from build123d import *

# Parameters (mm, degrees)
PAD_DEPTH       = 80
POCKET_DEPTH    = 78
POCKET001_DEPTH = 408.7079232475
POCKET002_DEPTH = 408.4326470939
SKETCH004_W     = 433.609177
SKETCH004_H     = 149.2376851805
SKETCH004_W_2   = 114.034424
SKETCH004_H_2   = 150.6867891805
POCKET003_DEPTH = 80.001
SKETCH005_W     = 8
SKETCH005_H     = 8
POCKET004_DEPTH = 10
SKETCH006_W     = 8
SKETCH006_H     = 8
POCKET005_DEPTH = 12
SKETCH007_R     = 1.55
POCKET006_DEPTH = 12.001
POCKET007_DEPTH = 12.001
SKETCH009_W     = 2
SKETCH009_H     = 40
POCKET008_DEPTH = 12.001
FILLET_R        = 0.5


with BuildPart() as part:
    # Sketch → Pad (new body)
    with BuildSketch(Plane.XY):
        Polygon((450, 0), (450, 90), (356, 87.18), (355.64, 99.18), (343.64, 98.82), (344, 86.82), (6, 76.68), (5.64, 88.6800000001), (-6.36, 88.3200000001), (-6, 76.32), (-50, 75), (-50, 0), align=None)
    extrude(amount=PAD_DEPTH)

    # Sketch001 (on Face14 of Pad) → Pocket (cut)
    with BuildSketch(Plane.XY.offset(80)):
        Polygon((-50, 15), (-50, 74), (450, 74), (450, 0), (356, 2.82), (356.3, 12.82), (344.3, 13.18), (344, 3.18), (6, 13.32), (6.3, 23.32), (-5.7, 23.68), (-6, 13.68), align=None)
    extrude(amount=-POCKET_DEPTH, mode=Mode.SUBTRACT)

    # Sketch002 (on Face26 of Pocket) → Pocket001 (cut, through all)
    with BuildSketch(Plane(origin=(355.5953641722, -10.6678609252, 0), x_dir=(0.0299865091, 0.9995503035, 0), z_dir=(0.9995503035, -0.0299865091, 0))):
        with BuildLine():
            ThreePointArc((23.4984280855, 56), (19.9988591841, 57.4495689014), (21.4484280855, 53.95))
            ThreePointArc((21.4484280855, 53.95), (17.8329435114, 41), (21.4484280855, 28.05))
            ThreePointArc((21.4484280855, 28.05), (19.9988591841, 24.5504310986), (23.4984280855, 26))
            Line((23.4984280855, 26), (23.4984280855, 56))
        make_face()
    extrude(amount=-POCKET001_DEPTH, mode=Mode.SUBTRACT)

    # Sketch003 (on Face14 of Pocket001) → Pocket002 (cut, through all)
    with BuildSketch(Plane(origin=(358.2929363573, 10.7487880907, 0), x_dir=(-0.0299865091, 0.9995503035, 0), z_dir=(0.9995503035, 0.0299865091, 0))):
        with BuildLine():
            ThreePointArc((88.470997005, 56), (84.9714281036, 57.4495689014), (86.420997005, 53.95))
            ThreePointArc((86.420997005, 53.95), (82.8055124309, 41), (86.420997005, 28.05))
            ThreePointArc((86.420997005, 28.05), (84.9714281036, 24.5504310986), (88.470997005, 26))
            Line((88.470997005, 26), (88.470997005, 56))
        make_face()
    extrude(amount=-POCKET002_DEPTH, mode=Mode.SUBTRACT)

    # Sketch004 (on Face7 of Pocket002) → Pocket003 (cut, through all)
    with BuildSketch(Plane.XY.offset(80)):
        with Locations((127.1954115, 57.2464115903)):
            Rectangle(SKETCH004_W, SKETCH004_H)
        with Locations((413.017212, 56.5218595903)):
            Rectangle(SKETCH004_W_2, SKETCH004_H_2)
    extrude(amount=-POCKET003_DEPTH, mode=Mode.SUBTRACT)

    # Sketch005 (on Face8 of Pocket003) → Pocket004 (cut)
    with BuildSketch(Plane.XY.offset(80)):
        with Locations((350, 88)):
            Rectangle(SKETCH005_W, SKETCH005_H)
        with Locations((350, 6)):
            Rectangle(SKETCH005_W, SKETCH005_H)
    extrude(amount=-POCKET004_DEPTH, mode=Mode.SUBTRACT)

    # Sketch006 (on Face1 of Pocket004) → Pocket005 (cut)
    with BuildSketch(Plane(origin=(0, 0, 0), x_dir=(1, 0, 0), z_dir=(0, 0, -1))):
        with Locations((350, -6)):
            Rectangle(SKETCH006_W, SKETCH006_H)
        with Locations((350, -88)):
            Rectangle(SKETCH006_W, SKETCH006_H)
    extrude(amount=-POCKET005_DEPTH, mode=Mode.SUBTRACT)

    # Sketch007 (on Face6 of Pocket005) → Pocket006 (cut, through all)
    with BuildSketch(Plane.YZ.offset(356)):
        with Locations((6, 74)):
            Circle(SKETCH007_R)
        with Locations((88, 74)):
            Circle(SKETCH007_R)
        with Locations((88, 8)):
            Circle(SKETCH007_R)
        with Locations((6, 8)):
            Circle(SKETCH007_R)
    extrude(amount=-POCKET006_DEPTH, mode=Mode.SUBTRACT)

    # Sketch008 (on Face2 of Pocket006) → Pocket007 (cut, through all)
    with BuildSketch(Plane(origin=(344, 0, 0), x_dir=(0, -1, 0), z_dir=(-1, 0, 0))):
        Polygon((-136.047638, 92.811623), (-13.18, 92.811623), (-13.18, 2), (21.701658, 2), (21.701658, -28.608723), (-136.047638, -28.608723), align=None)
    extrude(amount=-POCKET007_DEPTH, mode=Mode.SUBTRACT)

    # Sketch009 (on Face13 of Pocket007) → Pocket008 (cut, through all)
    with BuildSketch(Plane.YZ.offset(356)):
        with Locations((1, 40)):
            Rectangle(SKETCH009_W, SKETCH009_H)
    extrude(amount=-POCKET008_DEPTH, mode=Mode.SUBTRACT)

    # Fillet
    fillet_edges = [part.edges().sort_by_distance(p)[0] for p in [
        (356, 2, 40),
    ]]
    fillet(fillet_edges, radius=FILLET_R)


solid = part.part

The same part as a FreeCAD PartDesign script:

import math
import FreeCAD as App
import Part
import Sketcher
from FreeCAD import Vector
Q = App.Units.Quantity


def edges_at(feature, points):
    """Names of the edges that pass closest to the given points."""
    edges = feature.Shape.Edges
    near = lambda p: min(range(len(edges)), key=lambda i: edges[i].distToShape(Part.Vertex(*p))[0])
    return sorted({f"Edge{near(p) + 1}" for p in points})


def add_polygon(sketch, points):
    """Adds a closed chain of lines whose ends are joined by coincident constraints."""
    first, n = sketch.GeometryCount, len(points)
    for a, b in zip(points, points[1:] + points[:1]):
        sketch.addGeometry(Part.LineSegment(App.Vector(*a, 0), App.Vector(*b, 0)), False)
    for i in range(n):
        sketch.addConstraint(Sketcher.Constraint("Coincident", first + i, 2, first + (i + 1) % n, 1))

doc = App.newDocument("Part")
params = doc.addObject("Spreadsheet::Sheet", "Params")
for row, (alias, value) in enumerate([
    ("sketch1_width", "500 mm"),
    ("sketch1_height", "90 mm"),
    ("sketch1_height2", "75 mm"),
    ("pad1_length", "80 mm"),
    ("sketch2_width", "500 mm"),
    ("sketch2_height", "59 mm"),
    ("sketch2_height2", "74 mm"),
    ("pocket1_length", "78 mm"),
    ("sketch3_radius", "25 mm"),
    ("sketch3_height", "30 mm"),
    ("sketch3_radius2", "2.05 mm"),
    ("sketch4_radius", "25 mm"),
    ("sketch4_height", "30 mm"),
    ("sketch4_radius2", "2.05 mm"),
    ("sketch6_width", "8 mm"),
    ("pocket5_length", "10 mm"),
    ("sketch7_width", "8 mm"),
    ("pocket6_length", "12 mm"),
    ("sketch8_diameter", "3.1 mm"),
    ("sketch10_width", "2 mm"),
    ("sketch10_height", "40 mm"),
    ("fillet_radius", "0.5 mm"),
], start=1):
    params.set(f"A{row}", alias)
    params.set(f"B{row}", "=" + value)
    params.setAlias(f"B{row}", alias)

body = doc.addObject("PartDesign::Body", "Body")

# Sketch on XY plane
sketch1 = body.newObject("Sketcher::SketchObject", "Sketch")
sketch1.AttachmentSupport = (doc.getObject("XY_Plane"), [""])
sketch1.MapMode = "FlatFace"
add_polygon(sketch1, [(450, 0), (450, 90), (356, 87), (356, 99), (344, 99), (344, 87), (6, 77), (6, 89), (-6, 88), (-6, 76), (-50, 75), (-50, 0)])  # lines 0-11
sketch1.addConstraint(Sketcher.Constraint("Vertical", 0))
sketch1.addConstraint(Sketcher.Constraint("Vertical", 10))
sketch1.addConstraint(Sketcher.Constraint("Horizontal", 11))
sketch1.addConstraint(Sketcher.Constraint("PointOnObject", 10, 2, -1))
sketch1.addConstraint(Sketcher.Constraint("Perpendicular", 1, 2))
sketch1.addConstraint(Sketcher.Constraint("Perpendicular", 2, 3))
sketch1.addConstraint(Sketcher.Constraint("Perpendicular", 3, 4))
sketch1.addConstraint(Sketcher.Constraint("Perpendicular", 4, 5))
sketch1.addConstraint(Sketcher.Constraint("Perpendicular", 5, 6))
sketch1.addConstraint(Sketcher.Constraint("Perpendicular", 6, 7))
sketch1.addConstraint(Sketcher.Constraint("Perpendicular", 7, 8))
sketch1.addConstraint(Sketcher.Constraint("Perpendicular", 8, 9))
sketch1.addConstraint(Sketcher.Constraint("Equal", 2, 3))
sketch1.addConstraint(Sketcher.Constraint("Equal", 3, 4))
sketch1.addConstraint(Sketcher.Constraint("Equal", 4, 6))
sketch1.addConstraint(Sketcher.Constraint("Equal", 6, 7))
sketch1.addConstraint(Sketcher.Constraint("Equal", 7, 8))
sketch1.addConstraint(Sketcher.Constraint("DistanceX", 11, 1, 11, 2, Q("500 mm")))
sketch1.addConstraint(Sketcher.Constraint("DistanceY", 0, 1, 0, 2, Q("90 mm")))
sketch1.addConstraint(Sketcher.Constraint("DistanceY", 10, 2, 10, 1, Q("75 mm")))
sketch1.addConstraint(Sketcher.Constraint("DistanceX", -1, 1, 0, 2, Q("450 mm")))
sketch1.addConstraint(Sketcher.Constraint("DistanceX", -1, 1, 1, 2, Q("356 mm")))
sketch1.addConstraint(Sketcher.Constraint("DistanceX", -1, 1, 4, 2, Q("344 mm")))
sketch1.addConstraint(Sketcher.Constraint("DistanceX", -1, 1, 5, 2, Q("6 mm")))
sketch1.setExpression("Constraints[29]", "Params.sketch1_width")
sketch1.setExpression("Constraints[30]", "Params.sketch1_height")
sketch1.setExpression("Constraints[31]", "Params.sketch1_height2")
pad1 = body.newObject("PartDesign::Pad", "Pad")
pad1.Profile = sketch1
pad1.setExpression("Length", "Params.pad1_length")

# Sketch on XY plane
sketch2 = body.newObject("Sketcher::SketchObject", "Sketch001")
sketch2.AttachmentSupport = (doc.getObject("XY_Plane"), [""])
sketch2.MapMode = "FlatFace"
sketch2.AttachmentOffset = App.Placement(Vector(0, 0, 80), App.Rotation())
add_polygon(sketch2, [(-50, 74), (-50, 15), (-6, 14), (-6, 24), (6, 23), (6, 13), (344, 3), (344, 13), (356, 13), (356, 3), (450, 0), (450, 74)])  # lines 0-11
sketch2.addConstraint(Sketcher.Constraint("Vertical", 0))
sketch2.addConstraint(Sketcher.Constraint("Vertical", 10))
sketch2.addConstraint(Sketcher.Constraint("Horizontal", 11))
sketch2.addConstraint(Sketcher.Constraint("PointOnObject", 9, 2, -1))
sketch2.addConstraint(Sketcher.Constraint("Perpendicular", 1, 2))
sketch2.addConstraint(Sketcher.Constraint("Perpendicular", 2, 3))
sketch2.addConstraint(Sketcher.Constraint("Perpendicular", 3, 4))
sketch2.addConstraint(Sketcher.Constraint("Perpendicular", 4, 5))
sketch2.addConstraint(Sketcher.Constraint("Perpendicular", 5, 6))
sketch2.addConstraint(Sketcher.Constraint("Perpendicular", 6, 7))
sketch2.addConstraint(Sketcher.Constraint("Perpendicular", 7, 8))
sketch2.addConstraint(Sketcher.Constraint("Perpendicular", 8, 9))
sketch2.addConstraint(Sketcher.Constraint("Equal", 2, 4))
sketch2.addConstraint(Sketcher.Constraint("Equal", 4, 6))
sketch2.addConstraint(Sketcher.Constraint("Equal", 3, 7))
sketch2.addConstraint(Sketcher.Constraint("Equal", 6, 8))
sketch2.addConstraint(Sketcher.Constraint("DistanceX", 11, 2, 11, 1, Q("500 mm")))
sketch2.addConstraint(Sketcher.Constraint("DistanceY", 0, 2, 0, 1, Q("59 mm")))
sketch2.addConstraint(Sketcher.Constraint("DistanceY", 10, 1, 10, 2, Q("74 mm")))
sketch2.addConstraint(Sketcher.Constraint("DistanceX", 0, 2, -1, 1, Q("50 mm")))
sketch2.addConstraint(Sketcher.Constraint("DistanceX", 1, 2, -1, 1, Q("6 mm")))
sketch2.addConstraint(Sketcher.Constraint("DistanceX", -1, 1, 4, 2, Q("6 mm")))
sketch2.addConstraint(Sketcher.Constraint("DistanceX", -1, 1, 5, 2, Q("344 mm")))
sketch2.addConstraint(Sketcher.Constraint("DistanceY", 1, 2, 2, 2, Q("10 mm")))
sketch2.setExpression("Constraints[28]", "Params.sketch2_width")
sketch2.setExpression("Constraints[29]", "Params.sketch2_height")
sketch2.setExpression("Constraints[30]", "Params.sketch2_height2")
pocket1 = body.newObject("PartDesign::Pocket", "Pocket")
pocket1.Profile = sketch2
pocket1.setExpression("Length", "Params.pocket1_length")

# Sketch on an angled plane
sketch3 = body.newObject("Sketcher::SketchObject", "Sketch002")
sketch3.Placement = App.Placement(Vector(355.595364, -10.667861, 0), App.Rotation(Vector(0.029986509, 0.999550304, 0), Vector(0, 0, 1.000000001), Vector(0.999550304, -0.029986509, 0), "ZXY"))
sketch3.addGeometry(Part.ArcOfCircle(Part.Circle(Vector(21.4, 56, 0), Vector(0, 0, 1), 2), math.radians(0), math.radians(270)), False)
sketch3.addGeometry(Part.ArcOfCircle(Part.Circle(Vector(42.8, 41, 0), Vector(0, 0, 1), 25), math.radians(149), math.radians(211)), False)
sketch3.addGeometry(Part.ArcOfCircle(Part.Circle(Vector(21.4, 26, 0), Vector(0, 0, 1), 2), math.radians(90), math.radians(360)), False)
sketch3.addGeometry(Part.LineSegment(Vector(23.5, 26, 0), Vector(23.5, 56, 0)), False)
sketch3.addConstraint(Sketcher.Constraint("Coincident", 0, 2, 1, 1))
sketch3.addConstraint(Sketcher.Constraint("Coincident", 1, 2, 2, 1))
sketch3.addConstraint(Sketcher.Constraint("Tangent", 2, 2, 3, 1))
sketch3.addConstraint(Sketcher.Constraint("Tangent", 3, 2, 0, 1))
sketch3.addConstraint(Sketcher.Constraint("Vertical", 3))
sketch3.addConstraint(Sketcher.Constraint("Equal", 0, 2))
sketch3.addConstraint(Sketcher.Constraint("Vertical", 2, 3, 0, 2))
sketch3.addConstraint(Sketcher.Constraint("Vertical", 0, 2, 1, 2))
sketch3.addConstraint(Sketcher.Constraint("Radius", 1, Q("25 mm")))
sketch3.addConstraint(Sketcher.Constraint("DistanceY", 3, 1, 3, 2, Q("30 mm")))
sketch3.addConstraint(Sketcher.Constraint("Radius", 0, Q("2.05 mm")))
sketch3.addConstraint(Sketcher.Constraint("DistanceY", -1, 1, 0, 3, Q("56 mm")))
sketch3.addConstraint(Sketcher.Constraint("DistanceX", -1, 1, 0, 3, Q("21.448428 mm")))
sketch3.setExpression("Constraints[8]", "Params.sketch3_radius")
sketch3.setExpression("Constraints[9]", "Params.sketch3_height")
sketch3.setExpression("Constraints[10]", "Params.sketch3_radius2")
pocket2 = body.newObject("PartDesign::Pocket", "Pocket001")
pocket2.Profile = sketch3
pocket2.Type = "ThroughAll"

# Sketch on an angled plane
sketch4 = body.newObject("Sketcher::SketchObject", "Sketch003")
sketch4.Placement = App.Placement(Vector(358.292936, 10.748788, 0), App.Rotation(Vector(-0.029986509, 0.999550304, 0), Vector(0, 0, 1.000000001), Vector(0.999550304, 0.029986509, 0), "ZXY"))
sketch4.addGeometry(Part.ArcOfCircle(Part.Circle(Vector(86.4, 56, 0), Vector(0, 0, 1), 2), math.radians(0), math.radians(270)), False)
sketch4.addGeometry(Part.ArcOfCircle(Part.Circle(Vector(107.8, 41, 0), Vector(0, 0, 1), 25), math.radians(149), math.radians(211)), False)
sketch4.addGeometry(Part.ArcOfCircle(Part.Circle(Vector(86.4, 26, 0), Vector(0, 0, 1), 2), math.radians(90), math.radians(360)), False)
sketch4.addGeometry(Part.LineSegment(Vector(88.5, 26, 0), Vector(88.5, 56, 0)), False)
sketch4.addConstraint(Sketcher.Constraint("Coincident", 0, 2, 1, 1))
sketch4.addConstraint(Sketcher.Constraint("Coincident", 1, 2, 2, 1))
sketch4.addConstraint(Sketcher.Constraint("Tangent", 2, 2, 3, 1))
sketch4.addConstraint(Sketcher.Constraint("Tangent", 3, 2, 0, 1))
sketch4.addConstraint(Sketcher.Constraint("Vertical", 3))
sketch4.addConstraint(Sketcher.Constraint("Equal", 0, 2))
sketch4.addConstraint(Sketcher.Constraint("Vertical", 2, 3, 0, 2))
sketch4.addConstraint(Sketcher.Constraint("Vertical", 0, 2, 1, 2))
sketch4.addConstraint(Sketcher.Constraint("Radius", 1, Q("25 mm")))
sketch4.addConstraint(Sketcher.Constraint("DistanceY", 3, 1, 3, 2, Q("30 mm")))
sketch4.addConstraint(Sketcher.Constraint("Radius", 0, Q("2.05 mm")))
sketch4.addConstraint(Sketcher.Constraint("DistanceY", -1, 1, 0, 3, Q("56 mm")))
sketch4.addConstraint(Sketcher.Constraint("DistanceX", -1, 1, 0, 3, Q("86.420997 mm")))
sketch4.setExpression("Constraints[8]", "Params.sketch4_radius")
sketch4.setExpression("Constraints[9]", "Params.sketch4_height")
sketch4.setExpression("Constraints[10]", "Params.sketch4_radius2")
pocket3 = body.newObject("PartDesign::Pocket", "Pocket002")
pocket3.Profile = sketch4
pocket3.Type = "ThroughAll"

# Sketch on XY plane
sketch5 = body.newObject("Sketcher::SketchObject", "Sketch004")
sketch5.AttachmentSupport = (doc.getObject("XY_Plane"), [""])
sketch5.MapMode = "FlatFace"
sketch5.AttachmentOffset = App.Placement(Vector(0, 0, 80), App.Rotation())
add_polygon(sketch5, [(-90, 132), (-90, -17), (344, -17), (344, 132)])  # lines 0-3
add_polygon(sketch5, [(356, 132), (356, -19), (470, -19), (470, 132)])  # lines 4-7
sketch5.addConstraint(Sketcher.Constraint("Vertical", 0))
sketch5.addConstraint(Sketcher.Constraint("Horizontal", 1))
sketch5.addConstraint(Sketcher.Constraint("Vertical", 2))
sketch5.addConstraint(Sketcher.Constraint("Horizontal", 3))
sketch5.addConstraint(Sketcher.Constraint("Vertical", 4))
sketch5.addConstraint(Sketcher.Constraint("Horizontal", 5))
sketch5.addConstraint(Sketcher.Constraint("Vertical", 6))
sketch5.addConstraint(Sketcher.Constraint("Horizontal", 7))
sketch5.addConstraint(Sketcher.Constraint("Horizontal", 3, 2, 6, 2))
sketch5.addConstraint(Sketcher.Constraint("DistanceX", -1, 1, 1, 2, Q("344 mm")))
sketch5.addConstraint(Sketcher.Constraint("DistanceX", -1, 1, 4, 2, Q("356 mm")))
sketch5.addConstraint(Sketcher.Constraint("DistanceY", 4, 2, 4, 1, Q("150.686789 mm")))
sketch5.addConstraint(Sketcher.Constraint("DistanceX", 0, 2, 5, 2, Q("559.643601 mm")))
sketch5.addConstraint(Sketcher.Constraint("DistanceX", 1, 1, 1, 2, Q("433.609177 mm")))
sketch5.addConstraint(Sketcher.Constraint("DistanceY", 0, 2, 0, 1, Q("149.237685 mm")))
sketch5.addConstraint(Sketcher.Constraint("DistanceY", 0, 2, -1, 1, Q("17.372431 mm")))
pocket4 = body.newObject("PartDesign::Pocket", "Pocket003")
pocket4.Profile = sketch5
pocket4.Type = "ThroughAll"

# Sketch on XY plane
sketch6 = body.newObject("Sketcher::SketchObject", "Sketch005")
sketch6.AttachmentSupport = (doc.getObject("XY_Plane"), [""])
sketch6.MapMode = "FlatFace"
sketch6.AttachmentOffset = App.Placement(Vector(0, 0, 80), App.Rotation())
add_polygon(sketch6, [(346, 92), (346, 84), (354, 84), (354, 92)])  # lines 0-3
add_polygon(sketch6, [(346, 10), (346, 2), (354, 2), (354, 10)])  # lines 4-7
sketch6.addConstraint(Sketcher.Constraint("Vertical", 0))
sketch6.addConstraint(Sketcher.Constraint("Horizontal", 1))
sketch6.addConstraint(Sketcher.Constraint("Vertical", 2))
sketch6.addConstraint(Sketcher.Constraint("Horizontal", 3))
sketch6.addConstraint(Sketcher.Constraint("Vertical", 4))
sketch6.addConstraint(Sketcher.Constraint("Horizontal", 5))
sketch6.addConstraint(Sketcher.Constraint("Vertical", 6))
sketch6.addConstraint(Sketcher.Constraint("Horizontal", 7))
sketch6.addConstraint(Sketcher.Constraint("Vertical", 3, 2, 4, 2))
sketch6.addConstraint(Sketcher.Constraint("Vertical", 2, 2, 5, 2))
sketch6.addConstraint(Sketcher.Constraint("Equal", 7, 0))
sketch6.addConstraint(Sketcher.Constraint("Equal", 2, 4))
sketch6.addConstraint(Sketcher.Constraint("DistanceX", 1, 1, 1, 2, Q("8 mm")))
sketch6.addConstraint(Sketcher.Constraint("DistanceX", -1, 1, 0, 2, Q("346 mm")))
sketch6.addConstraint(Sketcher.Constraint("DistanceY", -1, 1, 0, 2, Q("84 mm")))
sketch6.addConstraint(Sketcher.Constraint("DistanceY", -1, 1, 4, 2, Q("2 mm")))
sketch6.setExpression("Constraints[20]", "Params.sketch6_width")
pocket5 = body.newObject("PartDesign::Pocket", "Pocket004")
pocket5.Profile = sketch6
pocket5.setExpression("Length", "Params.pocket5_length")

# Sketch on XY plane
sketch7 = body.newObject("Sketcher::SketchObject", "Sketch006")
sketch7.AttachmentSupport = (doc.getObject("XY_Plane"), [""])
sketch7.MapMode = "FlatFace"
add_polygon(sketch7, [(346, 2), (346, 10), (354, 10), (354, 2)])  # lines 0-3
add_polygon(sketch7, [(346, 84), (346, 92), (354, 92), (354, 84)])  # lines 4-7
sketch7.addConstraint(Sketcher.Constraint("Vertical", 0))
sketch7.addConstraint(Sketcher.Constraint("Horizontal", 1))
sketch7.addConstraint(Sketcher.Constraint("Vertical", 2))
sketch7.addConstraint(Sketcher.Constraint("Horizontal", 3))
sketch7.addConstraint(Sketcher.Constraint("Vertical", 4))
sketch7.addConstraint(Sketcher.Constraint("Horizontal", 5))
sketch7.addConstraint(Sketcher.Constraint("Vertical", 6))
sketch7.addConstraint(Sketcher.Constraint("Horizontal", 7))
sketch7.addConstraint(Sketcher.Constraint("Vertical", 3, 2, 4, 2))
sketch7.addConstraint(Sketcher.Constraint("Vertical", 2, 2, 5, 2))
sketch7.addConstraint(Sketcher.Constraint("Equal", 7, 0))
sketch7.addConstraint(Sketcher.Constraint("Equal", 2, 4))
sketch7.addConstraint(Sketcher.Constraint("DistanceX", 1, 1, 1, 2, Q("8 mm")))
sketch7.addConstraint(Sketcher.Constraint("DistanceX", -1, 1, 0, 2, Q("346 mm")))
sketch7.addConstraint(Sketcher.Constraint("DistanceY", -1, 1, 0, 2, Q("10 mm")))
sketch7.addConstraint(Sketcher.Constraint("DistanceY", -1, 1, 4, 2, Q("92 mm")))
sketch7.setExpression("Constraints[20]", "Params.sketch7_width")
pocket6 = body.newObject("PartDesign::Pocket", "Pocket005")
pocket6.Profile = sketch7
pocket6.setExpression("Length", "Params.pocket6_length")
pocket6.Reversed = True

# Sketch on YZ plane
sketch8 = body.newObject("Sketcher::SketchObject", "Sketch007")
sketch8.AttachmentSupport = (doc.getObject("YZ_Plane"), [""])
sketch8.MapMode = "FlatFace"
sketch8.AttachmentOffset = App.Placement(Vector(0, 0, 356), App.Rotation())
sketch8.addGeometry(Part.Circle(Vector(6, 74, 0), Vector(0, 0, 1), 1.6), False)
sketch8.addGeometry(Part.Circle(Vector(88, 74, 0), Vector(0, 0, 1), 1.6), False)
sketch8.addGeometry(Part.Circle(Vector(88, 8, 0), Vector(0, 0, 1), 1.6), False)
sketch8.addGeometry(Part.Circle(Vector(6, 8, 0), Vector(0, 0, 1), 1.6), False)
sketch8.addConstraint(Sketcher.Constraint("Equal", 0, 1))
sketch8.addConstraint(Sketcher.Constraint("Equal", 1, 2))
sketch8.addConstraint(Sketcher.Constraint("Equal", 2, 3))
sketch8.addConstraint(Sketcher.Constraint("Horizontal", 0, 3, 1, 3))
sketch8.addConstraint(Sketcher.Constraint("Horizontal", 2, 3, 3, 3))
sketch8.addConstraint(Sketcher.Constraint("Vertical", 1, 3, 2, 3))
sketch8.addConstraint(Sketcher.Constraint("Vertical", 0, 3, 3, 3))
sketch8.addConstraint(Sketcher.Constraint("Diameter", 0, Q("3.1 mm")))
sketch8.addConstraint(Sketcher.Constraint("DistanceX", -1, 1, 0, 3, Q("6 mm")))
sketch8.addConstraint(Sketcher.Constraint("DistanceY", -1, 1, 0, 3, Q("74 mm")))
sketch8.addConstraint(Sketcher.Constraint("DistanceX", -1, 1, 1, 3, Q("88 mm")))
sketch8.addConstraint(Sketcher.Constraint("DistanceY", -1, 1, 2, 3, Q("8 mm")))
sketch8.setExpression("Constraints[7]", "Params.sketch8_diameter")
pocket7 = body.newObject("PartDesign::Pocket", "Pocket006")
pocket7.Profile = sketch8
pocket7.Type = "ThroughAll"

# Sketch on YZ plane
sketch9 = body.newObject("Sketcher::SketchObject", "Sketch008")
sketch9.AttachmentSupport = (doc.getObject("YZ_Plane"), [""])
sketch9.MapMode = "FlatFace"
sketch9.AttachmentOffset = App.Placement(Vector(0, 0, 344), App.Rotation())
add_polygon(sketch9, [(13, 93), (136, 93), (136, -29), (-22, -29), (-22, 2), (13, 2)])  # lines 0-5
sketch9.addConstraint(Sketcher.Constraint("Horizontal", 0))
sketch9.addConstraint(Sketcher.Constraint("Vertical", 1))
sketch9.addConstraint(Sketcher.Constraint("Horizontal", 2))
sketch9.addConstraint(Sketcher.Constraint("Vertical", 3))
sketch9.addConstraint(Sketcher.Constraint("Horizontal", 4))
sketch9.addConstraint(Sketcher.Constraint("Vertical", 5))
sketch9.addConstraint(Sketcher.Constraint("DistanceY", -1, 1, 3, 2, Q("2 mm")))
sketch9.addConstraint(Sketcher.Constraint("DistanceX", -1, 1, 4, 2, Q("13.18 mm")))
sketch9.addConstraint(Sketcher.Constraint("DistanceX", 0, 1, 0, 2, Q("122.867638 mm")))
sketch9.addConstraint(Sketcher.Constraint("DistanceX", 4, 1, 4, 2, Q("34.881658 mm")))
sketch9.addConstraint(Sketcher.Constraint("DistanceY", 1, 2, 1, 1, Q("121.420346 mm")))
sketch9.addConstraint(Sketcher.Constraint("DistanceY", 3, 1, 3, 2, Q("30.608723 mm")))
pocket8 = body.newObject("PartDesign::Pocket", "Pocket007")
pocket8.Profile = sketch9
pocket8.Type = "ThroughAll"
pocket8.Reversed = True

# Sketch on YZ plane
sketch10 = body.newObject("Sketcher::SketchObject", "Sketch009")
sketch10.AttachmentSupport = (doc.getObject("YZ_Plane"), [""])
sketch10.MapMode = "FlatFace"
sketch10.AttachmentOffset = App.Placement(Vector(0, 0, 356), App.Rotation())
add_polygon(sketch10, [(0, 60), (0, 20), (2, 20), (2, 60)])  # lines 0-3
sketch10.addConstraint(Sketcher.Constraint("Vertical", 0))
sketch10.addConstraint(Sketcher.Constraint("Horizontal", 1))
sketch10.addConstraint(Sketcher.Constraint("Vertical", 2))
sketch10.addConstraint(Sketcher.Constraint("Horizontal", 3))
sketch10.addConstraint(Sketcher.Constraint("PointOnObject", 0, 2, -2))
sketch10.addConstraint(Sketcher.Constraint("DistanceX", 1, 1, 1, 2, Q("2 mm")))
sketch10.addConstraint(Sketcher.Constraint("DistanceY", 0, 2, 0, 1, Q("40 mm")))
sketch10.addConstraint(Sketcher.Constraint("DistanceY", -1, 1, 0, 2, Q("20 mm")))
sketch10.setExpression("Constraints[9]", "Params.sketch10_width")
sketch10.setExpression("Constraints[10]", "Params.sketch10_height")
pocket9 = body.newObject("PartDesign::Pocket", "Pocket008")
pocket9.Profile = sketch10
pocket9.Type = "ThroughAll"
doc.recompute()

fillet = body.newObject("PartDesign::Fillet", "Fillet")
fillet.Base = (pocket9, edges_at(pocket9, [(356, 2, 40)]))
fillet.setExpression("Radius", "Params.fillet_radius")

doc.recompute()
